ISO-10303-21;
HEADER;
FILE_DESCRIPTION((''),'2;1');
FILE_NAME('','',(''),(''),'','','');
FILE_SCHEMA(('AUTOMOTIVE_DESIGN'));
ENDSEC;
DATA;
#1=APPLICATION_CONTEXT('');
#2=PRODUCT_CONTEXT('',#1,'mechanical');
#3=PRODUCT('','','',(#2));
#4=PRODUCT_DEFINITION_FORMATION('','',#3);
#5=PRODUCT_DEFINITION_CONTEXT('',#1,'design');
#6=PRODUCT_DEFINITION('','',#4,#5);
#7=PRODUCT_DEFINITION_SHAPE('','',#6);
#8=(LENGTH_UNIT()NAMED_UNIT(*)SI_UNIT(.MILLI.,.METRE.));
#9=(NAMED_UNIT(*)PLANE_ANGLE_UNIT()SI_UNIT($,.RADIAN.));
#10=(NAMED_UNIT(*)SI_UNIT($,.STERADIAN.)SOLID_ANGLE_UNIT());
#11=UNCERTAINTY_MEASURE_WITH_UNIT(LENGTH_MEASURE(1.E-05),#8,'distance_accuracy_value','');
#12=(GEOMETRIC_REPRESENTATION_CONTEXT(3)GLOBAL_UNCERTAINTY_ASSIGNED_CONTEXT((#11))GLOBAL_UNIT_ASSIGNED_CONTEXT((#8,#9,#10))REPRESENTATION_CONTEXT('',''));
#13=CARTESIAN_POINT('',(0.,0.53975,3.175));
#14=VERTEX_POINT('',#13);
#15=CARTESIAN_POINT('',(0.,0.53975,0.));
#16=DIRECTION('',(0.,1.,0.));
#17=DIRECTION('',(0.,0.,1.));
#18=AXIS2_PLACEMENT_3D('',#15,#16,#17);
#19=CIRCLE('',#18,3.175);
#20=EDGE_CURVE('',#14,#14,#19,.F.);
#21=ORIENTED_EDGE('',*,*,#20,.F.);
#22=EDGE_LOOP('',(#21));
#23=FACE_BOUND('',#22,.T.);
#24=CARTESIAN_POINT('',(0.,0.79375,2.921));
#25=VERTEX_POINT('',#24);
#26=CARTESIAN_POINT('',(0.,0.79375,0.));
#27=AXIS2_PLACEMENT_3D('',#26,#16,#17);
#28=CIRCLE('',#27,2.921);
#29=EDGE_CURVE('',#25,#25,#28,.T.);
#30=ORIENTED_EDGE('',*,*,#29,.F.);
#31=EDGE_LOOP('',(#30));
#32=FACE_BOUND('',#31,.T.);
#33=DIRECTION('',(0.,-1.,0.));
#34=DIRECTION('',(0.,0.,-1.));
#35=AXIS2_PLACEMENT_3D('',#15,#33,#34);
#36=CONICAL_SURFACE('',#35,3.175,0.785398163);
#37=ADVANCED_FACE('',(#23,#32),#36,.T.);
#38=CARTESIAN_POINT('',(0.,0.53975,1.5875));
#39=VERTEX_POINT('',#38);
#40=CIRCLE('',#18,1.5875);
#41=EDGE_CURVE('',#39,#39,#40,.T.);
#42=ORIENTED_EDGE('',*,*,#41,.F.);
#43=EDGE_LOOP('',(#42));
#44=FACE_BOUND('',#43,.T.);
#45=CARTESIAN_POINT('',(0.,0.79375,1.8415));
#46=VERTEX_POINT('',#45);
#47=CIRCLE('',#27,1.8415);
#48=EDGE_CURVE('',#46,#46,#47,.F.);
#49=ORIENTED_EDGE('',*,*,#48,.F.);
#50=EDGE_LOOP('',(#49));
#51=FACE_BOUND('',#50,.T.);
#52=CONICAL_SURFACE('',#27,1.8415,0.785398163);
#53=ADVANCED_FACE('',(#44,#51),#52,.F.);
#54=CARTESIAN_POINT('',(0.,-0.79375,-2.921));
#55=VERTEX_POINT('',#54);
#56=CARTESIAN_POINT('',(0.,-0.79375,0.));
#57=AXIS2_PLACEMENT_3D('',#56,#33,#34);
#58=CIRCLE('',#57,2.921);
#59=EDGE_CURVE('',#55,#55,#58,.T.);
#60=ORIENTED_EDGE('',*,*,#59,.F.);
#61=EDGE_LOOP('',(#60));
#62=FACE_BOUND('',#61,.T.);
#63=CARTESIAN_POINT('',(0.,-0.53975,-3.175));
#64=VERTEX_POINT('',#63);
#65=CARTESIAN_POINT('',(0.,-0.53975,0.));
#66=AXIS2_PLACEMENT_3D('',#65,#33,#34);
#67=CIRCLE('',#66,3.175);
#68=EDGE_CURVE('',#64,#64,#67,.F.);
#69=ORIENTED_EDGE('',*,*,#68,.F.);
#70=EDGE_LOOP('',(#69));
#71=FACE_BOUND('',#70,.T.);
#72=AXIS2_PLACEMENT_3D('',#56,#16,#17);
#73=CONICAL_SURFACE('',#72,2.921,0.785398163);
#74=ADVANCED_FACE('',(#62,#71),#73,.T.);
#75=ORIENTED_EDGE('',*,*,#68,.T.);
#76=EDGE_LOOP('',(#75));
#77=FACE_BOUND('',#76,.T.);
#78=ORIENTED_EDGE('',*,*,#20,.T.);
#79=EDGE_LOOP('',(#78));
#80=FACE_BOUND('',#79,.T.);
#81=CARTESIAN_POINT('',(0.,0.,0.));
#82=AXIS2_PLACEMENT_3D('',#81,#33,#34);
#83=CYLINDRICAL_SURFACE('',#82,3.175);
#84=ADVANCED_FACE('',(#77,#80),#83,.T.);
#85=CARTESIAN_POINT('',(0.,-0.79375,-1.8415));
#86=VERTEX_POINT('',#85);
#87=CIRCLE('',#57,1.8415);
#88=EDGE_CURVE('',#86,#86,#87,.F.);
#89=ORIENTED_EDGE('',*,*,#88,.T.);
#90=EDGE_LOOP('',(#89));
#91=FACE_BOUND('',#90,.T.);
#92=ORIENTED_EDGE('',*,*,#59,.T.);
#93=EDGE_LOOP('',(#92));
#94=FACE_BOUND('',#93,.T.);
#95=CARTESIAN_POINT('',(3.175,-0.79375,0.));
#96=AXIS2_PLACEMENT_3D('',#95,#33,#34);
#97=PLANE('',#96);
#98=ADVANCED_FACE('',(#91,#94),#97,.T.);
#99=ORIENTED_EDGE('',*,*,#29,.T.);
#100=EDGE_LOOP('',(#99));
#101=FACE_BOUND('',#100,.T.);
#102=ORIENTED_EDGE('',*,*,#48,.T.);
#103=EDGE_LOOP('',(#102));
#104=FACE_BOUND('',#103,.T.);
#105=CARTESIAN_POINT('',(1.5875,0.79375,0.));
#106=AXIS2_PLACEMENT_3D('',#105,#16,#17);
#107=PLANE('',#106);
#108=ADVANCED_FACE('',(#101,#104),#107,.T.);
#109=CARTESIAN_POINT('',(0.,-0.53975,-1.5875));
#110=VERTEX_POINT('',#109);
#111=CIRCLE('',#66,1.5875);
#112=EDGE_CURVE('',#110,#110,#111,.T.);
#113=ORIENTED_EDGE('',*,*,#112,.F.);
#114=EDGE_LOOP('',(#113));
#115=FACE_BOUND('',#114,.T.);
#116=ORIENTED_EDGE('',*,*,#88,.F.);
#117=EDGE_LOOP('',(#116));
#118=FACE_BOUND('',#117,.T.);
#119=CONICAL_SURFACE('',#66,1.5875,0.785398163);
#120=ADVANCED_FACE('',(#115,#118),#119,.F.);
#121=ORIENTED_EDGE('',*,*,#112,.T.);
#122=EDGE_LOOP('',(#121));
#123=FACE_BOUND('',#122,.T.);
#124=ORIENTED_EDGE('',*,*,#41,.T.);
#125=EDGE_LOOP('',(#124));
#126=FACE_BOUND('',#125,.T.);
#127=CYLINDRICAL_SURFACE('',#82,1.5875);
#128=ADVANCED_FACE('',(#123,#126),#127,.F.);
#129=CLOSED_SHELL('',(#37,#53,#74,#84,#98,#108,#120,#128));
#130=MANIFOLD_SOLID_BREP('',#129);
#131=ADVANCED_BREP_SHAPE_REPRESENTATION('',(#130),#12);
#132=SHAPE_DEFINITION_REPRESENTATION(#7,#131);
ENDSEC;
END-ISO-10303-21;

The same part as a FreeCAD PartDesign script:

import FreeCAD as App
import Part
import Sketcher
Q = App.Units.Quantity


def edges_at(feature, points):
    """Names of the edges that pass closest to the given points."""
    edges = feature.Shape.Edges
    near = lambda p: min(range(len(edges)), key=lambda i: edges[i].distToShape(Part.Vertex(*p))[0])
    return sorted({f"Edge{near(p) + 1}" for p in points})

doc = App.newDocument("Part")
params = doc.addObject("Spreadsheet::Sheet", "Params")
for row, (alias, value) in enumerate([
    ("sketch1_width", "0.0625 in"),
    ("revolution_angle", "360 deg"),
    ("chamfer_size", "0.01 in"),
], start=1):
    params.set(f"A{row}", alias)
    params.set(f"B{row}", "=" + value)
    params.setAlias(f"B{row}", alias)

body = doc.addObject("PartDesign::Body", "Body")

sketch1 = doc.addObject("Sketcher::SketchObject", "Sketch")
body.addObject(sketch1)
sketch1.AttachmentSupport = (doc.XY_Plane, [""])
sketch1.MapMode = "FlatFace"
sketch1.addGeometry(Part.LineSegment(App.Vector(1.6, 0.8, 0), App.Vector(1.6, -0.8, 0)), False)
sketch1.addGeometry(Part.LineSegment(App.Vector(1.6, -0.8, 0), App.Vector(3.2, -0.8, 0)), False)
sketch1.addGeometry(Part.LineSegment(App.Vector(3.2, -0.8, 0), App.Vector(3.2, 0.8, 0)), False)
sketch1.addGeometry(Part.LineSegment(App.Vector(3.2, 0.8, 0), App.Vector(1.6, 0.8, 0)), False)
sketch1.addConstraint(Sketcher.Constraint("Coincident", 0, 2, 1, 1))
sketch1.addConstraint(Sketcher.Constraint("Coincident", 1, 2, 2, 1))
sketch1.addConstraint(Sketcher.Constraint("Coincident", 2, 2, 3, 1))
sketch1.addConstraint(Sketcher.Constraint("Coincident", 3, 2, 0, 1))
sketch1.addConstraint(Sketcher.Constraint("Vertical", 0))
sketch1.addConstraint(Sketcher.Constraint("Horizontal", 1))
sketch1.addConstraint(Sketcher.Constraint("Vertical", 2))
sketch1.addConstraint(Sketcher.Constraint("Horizontal", 3))
sketch1.addConstraint(Sketcher.Constraint("Equal", 3, 0))
sketch1.addConstraint(Sketcher.Constraint("DistanceX", 1, 1, 1, 2, Q("0.0625 in")))
sketch1.addConstraint(Sketcher.Constraint("DistanceX", -1, 1, 0, 2, Q("0.0625 in")))
sketch1.addConstraint(Sketcher.Constraint("DistanceY", 0, 2, -1, 1, Q("0.03125 in")))
sketch1.setExpression("Constraints[9]", "Params.sketch1_width")
revolution = doc.addObject("PartDesign::Revolution", "Revolution")
body.addObject(revolution)
revolution.Profile = sketch1
revolution.ReferenceAxis = (sketch1, ["V_Axis"])
revolution.setExpression("Angle", "Params.revolution_angle")
doc.recompute()

chamfer = doc.addObject("PartDesign::Chamfer", "Chamfer")
body.addObject(chamfer)
chamfer.Base = (revolution, edges_at(revolution, [
    (-1.587, -0.794, 0),
    (-3.175, -0.794, 0),
    (-3.175, 0.794, 0),
    (-1.587, 0.794, 0),
]))
chamfer.setExpression("Size", "Params.chamfer_size")

doc.recompute()
